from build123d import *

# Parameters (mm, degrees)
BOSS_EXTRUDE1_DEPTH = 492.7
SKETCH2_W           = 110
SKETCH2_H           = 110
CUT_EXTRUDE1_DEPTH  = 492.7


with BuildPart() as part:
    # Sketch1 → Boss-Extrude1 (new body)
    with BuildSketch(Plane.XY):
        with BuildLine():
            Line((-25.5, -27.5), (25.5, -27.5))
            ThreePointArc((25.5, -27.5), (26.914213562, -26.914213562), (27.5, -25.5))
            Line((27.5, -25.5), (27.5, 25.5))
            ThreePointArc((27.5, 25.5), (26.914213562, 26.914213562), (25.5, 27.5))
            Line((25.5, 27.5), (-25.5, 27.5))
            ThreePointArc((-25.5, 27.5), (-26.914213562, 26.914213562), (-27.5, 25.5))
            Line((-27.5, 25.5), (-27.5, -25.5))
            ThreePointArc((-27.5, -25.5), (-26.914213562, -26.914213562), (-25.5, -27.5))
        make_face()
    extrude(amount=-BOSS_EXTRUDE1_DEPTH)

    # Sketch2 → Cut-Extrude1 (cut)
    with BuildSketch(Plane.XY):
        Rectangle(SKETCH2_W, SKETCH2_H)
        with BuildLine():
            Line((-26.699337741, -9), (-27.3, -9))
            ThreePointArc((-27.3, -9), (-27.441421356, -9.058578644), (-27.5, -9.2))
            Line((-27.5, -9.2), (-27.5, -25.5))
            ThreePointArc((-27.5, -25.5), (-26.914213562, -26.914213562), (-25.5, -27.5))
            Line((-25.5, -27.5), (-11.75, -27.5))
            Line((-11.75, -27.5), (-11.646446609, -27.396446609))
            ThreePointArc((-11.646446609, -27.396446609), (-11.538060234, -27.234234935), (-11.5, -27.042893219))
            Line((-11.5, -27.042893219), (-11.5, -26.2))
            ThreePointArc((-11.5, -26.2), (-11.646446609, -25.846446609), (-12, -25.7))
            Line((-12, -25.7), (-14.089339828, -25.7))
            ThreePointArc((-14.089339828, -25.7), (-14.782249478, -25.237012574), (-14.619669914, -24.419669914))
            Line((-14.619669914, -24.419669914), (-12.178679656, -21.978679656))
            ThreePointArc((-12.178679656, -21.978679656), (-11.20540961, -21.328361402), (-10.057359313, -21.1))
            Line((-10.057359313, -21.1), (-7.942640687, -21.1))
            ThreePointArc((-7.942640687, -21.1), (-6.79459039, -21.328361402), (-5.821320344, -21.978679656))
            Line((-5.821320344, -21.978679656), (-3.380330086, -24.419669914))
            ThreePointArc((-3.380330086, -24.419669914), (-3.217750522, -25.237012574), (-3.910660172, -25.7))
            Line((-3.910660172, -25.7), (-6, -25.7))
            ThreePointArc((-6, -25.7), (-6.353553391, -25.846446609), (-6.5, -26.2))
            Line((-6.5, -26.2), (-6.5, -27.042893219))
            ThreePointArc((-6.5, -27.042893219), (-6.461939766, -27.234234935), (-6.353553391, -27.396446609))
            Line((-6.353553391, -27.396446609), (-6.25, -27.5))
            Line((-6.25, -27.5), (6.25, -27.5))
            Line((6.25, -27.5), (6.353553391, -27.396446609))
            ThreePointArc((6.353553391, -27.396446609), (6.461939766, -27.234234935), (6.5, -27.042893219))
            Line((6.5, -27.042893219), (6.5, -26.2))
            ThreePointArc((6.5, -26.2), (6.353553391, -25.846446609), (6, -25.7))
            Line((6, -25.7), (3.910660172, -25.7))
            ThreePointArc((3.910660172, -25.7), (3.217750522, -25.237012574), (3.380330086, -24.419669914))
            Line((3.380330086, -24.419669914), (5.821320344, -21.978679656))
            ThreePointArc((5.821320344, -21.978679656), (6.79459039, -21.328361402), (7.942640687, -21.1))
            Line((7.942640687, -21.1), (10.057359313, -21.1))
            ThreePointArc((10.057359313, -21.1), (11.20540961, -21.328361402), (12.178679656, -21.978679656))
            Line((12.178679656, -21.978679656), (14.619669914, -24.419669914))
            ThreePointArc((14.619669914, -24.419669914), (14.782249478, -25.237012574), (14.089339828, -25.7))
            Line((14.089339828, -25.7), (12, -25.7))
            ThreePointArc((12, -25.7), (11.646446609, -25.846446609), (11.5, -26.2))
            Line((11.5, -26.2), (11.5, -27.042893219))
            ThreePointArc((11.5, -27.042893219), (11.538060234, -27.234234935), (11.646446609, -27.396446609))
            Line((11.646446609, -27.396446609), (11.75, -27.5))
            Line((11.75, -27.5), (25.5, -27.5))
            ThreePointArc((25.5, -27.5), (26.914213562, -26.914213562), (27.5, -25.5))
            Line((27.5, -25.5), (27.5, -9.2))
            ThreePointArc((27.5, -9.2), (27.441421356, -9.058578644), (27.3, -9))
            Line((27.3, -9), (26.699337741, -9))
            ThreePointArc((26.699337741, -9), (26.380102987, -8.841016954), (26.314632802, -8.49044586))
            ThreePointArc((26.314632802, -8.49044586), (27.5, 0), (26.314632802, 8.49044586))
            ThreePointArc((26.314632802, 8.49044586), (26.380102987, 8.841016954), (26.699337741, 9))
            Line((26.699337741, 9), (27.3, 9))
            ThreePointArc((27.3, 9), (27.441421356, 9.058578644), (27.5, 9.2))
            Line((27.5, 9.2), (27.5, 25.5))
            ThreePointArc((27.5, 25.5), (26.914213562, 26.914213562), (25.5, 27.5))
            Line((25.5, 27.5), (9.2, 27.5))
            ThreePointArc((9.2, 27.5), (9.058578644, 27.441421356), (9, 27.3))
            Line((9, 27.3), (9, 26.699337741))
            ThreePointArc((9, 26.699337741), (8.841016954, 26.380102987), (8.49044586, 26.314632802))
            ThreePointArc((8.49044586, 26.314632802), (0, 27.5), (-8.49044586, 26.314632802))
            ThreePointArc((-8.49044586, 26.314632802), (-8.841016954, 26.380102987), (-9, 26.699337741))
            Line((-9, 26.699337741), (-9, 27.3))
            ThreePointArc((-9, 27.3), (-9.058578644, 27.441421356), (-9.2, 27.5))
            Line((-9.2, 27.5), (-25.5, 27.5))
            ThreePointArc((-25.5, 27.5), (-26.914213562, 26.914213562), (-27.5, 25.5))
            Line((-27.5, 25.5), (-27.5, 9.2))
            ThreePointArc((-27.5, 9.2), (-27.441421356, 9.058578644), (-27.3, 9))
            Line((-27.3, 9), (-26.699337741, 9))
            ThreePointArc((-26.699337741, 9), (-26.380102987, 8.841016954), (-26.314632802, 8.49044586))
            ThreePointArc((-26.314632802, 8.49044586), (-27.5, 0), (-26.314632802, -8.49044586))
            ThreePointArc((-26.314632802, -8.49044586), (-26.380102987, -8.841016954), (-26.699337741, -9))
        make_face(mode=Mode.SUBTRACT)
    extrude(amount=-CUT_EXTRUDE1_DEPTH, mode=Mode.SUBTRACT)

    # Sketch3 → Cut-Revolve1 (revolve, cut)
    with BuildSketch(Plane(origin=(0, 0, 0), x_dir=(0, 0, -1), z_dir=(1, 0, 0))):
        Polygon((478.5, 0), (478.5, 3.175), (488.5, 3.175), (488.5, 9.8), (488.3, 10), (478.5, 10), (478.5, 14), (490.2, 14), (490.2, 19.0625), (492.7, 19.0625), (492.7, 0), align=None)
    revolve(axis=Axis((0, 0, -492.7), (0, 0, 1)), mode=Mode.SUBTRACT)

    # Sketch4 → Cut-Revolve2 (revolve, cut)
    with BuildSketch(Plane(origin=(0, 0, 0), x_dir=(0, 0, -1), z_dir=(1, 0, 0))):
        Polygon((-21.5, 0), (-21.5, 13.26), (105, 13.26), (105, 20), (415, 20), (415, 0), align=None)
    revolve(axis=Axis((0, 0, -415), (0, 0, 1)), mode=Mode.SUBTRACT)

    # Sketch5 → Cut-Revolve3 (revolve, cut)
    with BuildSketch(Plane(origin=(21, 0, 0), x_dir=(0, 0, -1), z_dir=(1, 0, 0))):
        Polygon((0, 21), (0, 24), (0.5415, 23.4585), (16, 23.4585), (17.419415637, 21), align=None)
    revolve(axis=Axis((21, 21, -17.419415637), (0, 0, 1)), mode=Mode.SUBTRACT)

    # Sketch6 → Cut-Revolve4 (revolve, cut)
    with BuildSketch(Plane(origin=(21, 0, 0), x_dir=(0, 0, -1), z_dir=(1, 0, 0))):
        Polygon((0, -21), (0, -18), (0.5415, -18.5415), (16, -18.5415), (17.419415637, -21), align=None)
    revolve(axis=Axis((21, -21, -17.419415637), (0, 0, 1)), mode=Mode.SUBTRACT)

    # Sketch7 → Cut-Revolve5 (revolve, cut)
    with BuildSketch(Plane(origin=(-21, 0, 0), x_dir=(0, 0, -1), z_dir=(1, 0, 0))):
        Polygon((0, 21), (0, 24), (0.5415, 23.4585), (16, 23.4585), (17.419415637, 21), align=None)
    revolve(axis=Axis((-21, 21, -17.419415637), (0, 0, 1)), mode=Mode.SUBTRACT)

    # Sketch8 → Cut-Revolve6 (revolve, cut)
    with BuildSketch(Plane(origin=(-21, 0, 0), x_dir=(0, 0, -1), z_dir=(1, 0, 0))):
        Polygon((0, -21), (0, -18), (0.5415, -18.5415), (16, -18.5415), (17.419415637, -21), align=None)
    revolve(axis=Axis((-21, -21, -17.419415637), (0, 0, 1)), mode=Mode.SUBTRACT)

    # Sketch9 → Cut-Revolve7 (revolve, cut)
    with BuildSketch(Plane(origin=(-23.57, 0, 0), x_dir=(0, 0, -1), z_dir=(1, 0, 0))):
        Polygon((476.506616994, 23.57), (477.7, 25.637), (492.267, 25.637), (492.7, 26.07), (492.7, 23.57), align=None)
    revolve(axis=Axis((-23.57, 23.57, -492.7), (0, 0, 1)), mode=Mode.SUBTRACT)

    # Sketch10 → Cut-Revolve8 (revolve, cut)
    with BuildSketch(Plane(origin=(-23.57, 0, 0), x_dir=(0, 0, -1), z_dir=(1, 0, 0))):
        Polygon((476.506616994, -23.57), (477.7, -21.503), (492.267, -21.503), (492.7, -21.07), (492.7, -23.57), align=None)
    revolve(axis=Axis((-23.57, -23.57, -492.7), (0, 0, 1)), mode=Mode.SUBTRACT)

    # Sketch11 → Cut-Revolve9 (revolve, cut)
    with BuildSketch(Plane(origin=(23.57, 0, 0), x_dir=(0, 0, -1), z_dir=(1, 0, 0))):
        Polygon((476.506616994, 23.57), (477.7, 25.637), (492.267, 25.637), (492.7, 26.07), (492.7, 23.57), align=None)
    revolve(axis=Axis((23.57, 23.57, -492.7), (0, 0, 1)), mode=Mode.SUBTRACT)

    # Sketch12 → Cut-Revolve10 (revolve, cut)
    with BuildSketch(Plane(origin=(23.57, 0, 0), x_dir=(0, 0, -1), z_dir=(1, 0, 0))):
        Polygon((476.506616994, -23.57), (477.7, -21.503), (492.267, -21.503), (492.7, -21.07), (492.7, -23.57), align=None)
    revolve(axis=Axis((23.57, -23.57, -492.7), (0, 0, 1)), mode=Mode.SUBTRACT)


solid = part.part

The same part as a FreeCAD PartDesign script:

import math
import FreeCAD as App
import Part
import Sketcher

V = App.Vector
Q = App.Units.Quantity

doc = App.newDocument("Part")
body = doc.addObject("PartDesign::Body", "Body")

# Sketch on XY plane
sketch1 = body.newObject("Sketcher::SketchObject", "Sketch")
sketch1.AttachmentSupport = (doc.getObject("XY_Plane"), [""])
sketch1.MapMode = "FlatFace"
sketch1.addGeometry([
    Part.LineSegment(V(-25.5, -27.5, 0), V(25.5, -27.5, 0)),  # 0
    Part.ArcOfCircle(Part.Circle(V(25.5, -25.5, 0), V(0, 0, 1), 2), math.radians(-90), math.radians(0)),  # 1
    Part.LineSegment(V(27.5, -25.5, 0), V(27.5, 25.5, 0)),  # 2
    Part.ArcOfCircle(Part.Circle(V(25.5, 25.5, 0), V(0, 0, 1), 2), math.radians(0), math.radians(90)),  # 3
    Part.LineSegment(V(25.5, 27.5, 0), V(-25.5, 27.5, 0)),  # 4
    Part.ArcOfCircle(Part.Circle(V(-25.5, 25.5, 0), V(0, 0, 1), 2), math.radians(90), math.radians(180)),  # 5
    Part.LineSegment(V(-27.5, 25.5, 0), V(-27.5, -25.5, 0)),  # 6
    Part.ArcOfCircle(Part.Circle(V(-25.5, -25.5, 0), V(0, 0, 1), 2), math.radians(-180), math.radians(-90)),  # 7
], False)
sketch1.addConstraint([
    Sketcher.Constraint("Tangent", 0, 2, 1, 1),
    Sketcher.Constraint("Tangent", 1, 2, 2, 1),
    Sketcher.Constraint("Tangent", 2, 2, 3, 1),
    Sketcher.Constraint("Tangent", 3, 2, 4, 1),
    Sketcher.Constraint("Tangent", 4, 2, 5, 1),
    Sketcher.Constraint("Tangent", 5, 2, 6, 1),
    Sketcher.Constraint("Tangent", 6, 2, 7, 1),
    Sketcher.Constraint("Tangent", 7, 2, 0, 1),
    Sketcher.Constraint("Horizontal", 0),
    Sketcher.Constraint("Vertical", 2),
    Sketcher.Constraint("Horizontal", 4),
    Sketcher.Constraint("Vertical", 6),
    Sketcher.Constraint("Equal", 1, 3),
    Sketcher.Constraint("Equal", 3, 5),
    Sketcher.Constraint("Equal", 5, 7),
    Sketcher.Constraint("Symmetric", 1, 3, 5, 3, -1, 1),
    Sketcher.Constraint("Equal", 4, 2),
    Sketcher.Constraint("Radius", 1, Q("2 mm")),
    Sketcher.Constraint("DistanceX", 0, 1, 0, 2, Q("51 mm")),
])
pad1 = body.newObject("PartDesign::Pad", "Pad")
pad1.Profile = sketch1
pad1.Length = 492.7
pad1.Reversed = True

# Sketch on XY plane
sketch2 = body.newObject("Sketcher::SketchObject", "Sketch001")
sketch2.AttachmentSupport = (doc.getObject("XY_Plane"), [""])
sketch2.MapMode = "FlatFace"
sketch2.addGeometry([
    Part.LineSegment(V(-55, 55, 0), V(-55, -55, 0)),  # 0
    Part.LineSegment(V(-55, -55, 0), V(55, -55, 0)),  # 1
    Part.LineSegment(V(55, -55, 0), V(55, 55, 0)),  # 2
    Part.LineSegment(V(55, 55, 0), V(-55, 55, 0)),  # 3
    Part.LineSegment(V(-27.3, -9, 0), V(-26.7, -9, 0)),  # 4
    Part.ArcOfCircle(Part.Circle(V(-26.7, -8.6, 0), V(0, 0, 1), 0.4), math.radians(-90), math.radians(16)),  # 5
    Part.ArcOfCircle(Part.Circle(V(3.5, 0, 0), V(0, 0, 1), 31), math.radians(164), math.radians(196)),  # 6
    Part.ArcOfCircle(Part.Circle(V(-26.7, 8.6, 0), V(0, 0, 1), 0.4), math.radians(-16), math.radians(90)),  # 7
    Part.LineSegment(V(-26.7, 9, 0), V(-27.3, 9, 0)),  # 8
    Part.ArcOfCircle(Part.Circle(V(-27.3, 9.2, 0), V(0, 0, 1), 0.2), math.radians(-180), math.radians(-90)),  # 9
    Part.LineSegment(V(-27.5, 9.2, 0), V(-27.5, 25.5, 0)),  # 10
    Part.ArcOfCircle(Part.Circle(V(-25.5, 25.5, 0), V(0, 0, 1), 2), math.radians(90), math.radians(180)),  # 11
    Part.LineSegment(V(-25.5, 27.5, 0), V(-9.2, 27.5, 0)),  # 12
    Part.ArcOfCircle(Part.Circle(V(-9.2, 27.3, 0), V(0, 0, 1), 0.2), math.radians(0), math.radians(90)),  # 13
    Part.LineSegment(V(-9, 27.3, 0), V(-9, 26.7, 0)),  # 14
    Part.ArcOfCircle(Part.Circle(V(-8.6, 26.7, 0), V(0, 0, 1), 0.4), math.radians(180), math.radians(286)),  # 15
    Part.ArcOfCircle(Part.Circle(V(0, -3.5, 0), V(0, 0, 1), 31), math.radians(74), math.radians(106)),  # 16
    Part.ArcOfCircle(Part.Circle(V(8.6, 26.7, 0), V(0, 0, 1), 0.4), math.radians(-106), math.radians(0)),  # 17
    Part.LineSegment(V(9, 26.7, 0), V(9, 27.3, 0)),  # 18
    Part.ArcOfCircle(Part.Circle(V(9.2, 27.3, 0), V(0, 0, 1), 0.2), math.radians(90), math.radians(180)),  # 19
    Part.LineSegment(V(9.2, 27.5, 0), V(25.5, 27.5, 0)),  # 20
    Part.ArcOfCircle(Part.Circle(V(25.5, 25.5, 0), V(0, 0, 1), 2), math.radians(0), math.radians(90)),  # 21
    Part.LineSegment(V(27.5, 25.5, 0), V(27.5, 9.2, 0)),  # 22
    Part.ArcOfCircle(Part.Circle(V(27.3, 9.2, 0), V(0, 0, 1), 0.2), math.radians(-90), math.radians(0)),  # 23
    Part.LineSegment(V(27.3, 9, 0), V(26.7, 9, 0)),  # 24
    Part.ArcOfCircle(Part.Circle(V(26.7, 8.6, 0), V(0, 0, 1), 0.4), math.radians(90), math.radians(196)),  # 25
    Part.ArcOfCircle(Part.Circle(V(-3.5, 0, 0), V(0, 0, 1), 31), math.radians(-16), math.radians(16)),  # 26
    Part.ArcOfCircle(Part.Circle(V(26.7, -8.6, 0), V(0, 0, 1), 0.4), math.radians(164), math.radians(270)),  # 27
    Part.LineSegment(V(26.7, -9, 0), V(27.3, -9, 0)),  # 28
    Part.ArcOfCircle(Part.Circle(V(27.3, -9.2, 0), V(0, 0, 1), 0.2), math.radians(0), math.radians(90)),  # 29
    Part.LineSegment(V(27.5, -9.2, 0), V(27.5, -25.5, 0)),  # 30
    Part.ArcOfCircle(Part.Circle(V(25.5, -25.5, 0), V(0, 0, 1), 2), math.radians(-90), math.radians(0)),  # 31
    Part.LineSegment(V(25.5, -27.5, 0), V(11.75, -27.5, 0)),  # 32
    Part.LineSegment(V(11.75, -27.5, 0), V(11.65, -27.4, 0)),  # 33
    Part.ArcOfCircle(Part.Circle(V(12, -27.04, 0), V(0, 0, 1), 0.5), math.radians(-180), math.radians(-135)),  # 34
    Part.LineSegment(V(11.5, -27.04, 0), V(11.5, -26.2, 0)),  # 35
    Part.ArcOfCircle(Part.Circle(V(12, -26.2, 0), V(0, 0, 1), 0.5), math.radians(90), math.radians(180)),  # 36
    Part.LineSegment(V(12, -25.7, 0), V(14.09, -25.7, 0)),  # 37
    Part.ArcOfCircle(Part.Circle(V(14.09, -24.95, 0), V(0, 0, 1), 0.75), math.radians(-90), math.radians(45)),  # 38
    Part.LineSegment(V(14.62, -24.42, 0), V(12.18, -21.98, 0)),  # 39
    Part.ArcOfCircle(Part.Circle(V(10.06, -24.1, 0), V(0, 0, 1), 3), math.radians(45), math.radians(90)),  # 40
    Part.LineSegment(V(10.06, -21.1, 0), V(7.94, -21.1, 0)),  # 41
    Part.ArcOfCircle(Part.Circle(V(7.94, -24.1, 0), V(0, 0, 1), 3), math.radians(90), math.radians(135)),  # 42
    Part.LineSegment(V(5.82, -21.98, 0), V(3.38, -24.42, 0)),  # 43
    Part.ArcOfCircle(Part.Circle(V(3.91, -24.95, 0), V(0, 0, 1), 0.75), math.radians(135), math.radians(270)),  # 44
    Part.LineSegment(V(3.91, -25.7, 0), V(6, -25.7, 0)),  # 45
    Part.ArcOfCircle(Part.Circle(V(6, -26.2, 0), V(0, 0, 1), 0.5), math.radians(0), math.radians(90)),  # 46
    Part.LineSegment(V(6.5, -26.2, 0), V(6.5, -27.04, 0)),  # 47
    Part.ArcOfCircle(Part.Circle(V(6, -27.04, 0), V(0, 0, 1), 0.5), math.radians(-45), math.radians(0)),  # 48
    Part.LineSegment(V(6.35, -27.4, 0), V(6.25, -27.5, 0)),  # 49
    Part.LineSegment(V(6.25, -27.5, 0), V(-6.25, -27.5, 0)),  # 50
    Part.LineSegment(V(-6.25, -27.5, 0), V(-6.35, -27.4, 0)),  # 51
    Part.ArcOfCircle(Part.Circle(V(-6, -27.04, 0), V(0, 0, 1), 0.5), math.radians(-180), math.radians(-135)),  # 52
    Part.LineSegment(V(-6.5, -27.04, 0), V(-6.5, -26.2, 0)),  # 53
    Part.ArcOfCircle(Part.Circle(V(-6, -26.2, 0), V(0, 0, 1), 0.5), math.radians(90), math.radians(180)),  # 54
    Part.LineSegment(V(-6, -25.7, 0), V(-3.91, -25.7, 0)),  # 55
    Part.ArcOfCircle(Part.Circle(V(-3.91, -24.95, 0), V(0, 0, 1), 0.75), math.radians(-90), math.radians(45)),  # 56
    Part.LineSegment(V(-3.38, -24.42, 0), V(-5.82, -21.98, 0)),  # 57
    Part.ArcOfCircle(Part.Circle(V(-7.94, -24.1, 0), V(0, 0, 1), 3), math.radians(45), math.radians(90)),  # 58
    Part.LineSegment(V(-7.94, -21.1, 0), V(-10.06, -21.1, 0)),  # 59
    Part.ArcOfCircle(Part.Circle(V(-10.06, -24.1, 0), V(0, 0, 1), 3), math.radians(90), math.radians(135)),  # 60
    Part.LineSegment(V(-12.18, -21.98, 0), V(-14.62, -24.42, 0)),  # 61
    Part.ArcOfCircle(Part.Circle(V(-14.09, -24.95, 0), V(0, 0, 1), 0.75), math.radians(135), math.radians(270)),  # 62
    Part.LineSegment(V(-14.09, -25.7, 0), V(-12, -25.7, 0)),  # 63
    Part.ArcOfCircle(Part.Circle(V(-12, -26.2, 0), V(0, 0, 1), 0.5), math.radians(0), math.radians(90)),  # 64
    Part.LineSegment(V(-11.5, -26.2, 0), V(-11.5, -27.04, 0)),  # 65
    Part.ArcOfCircle(Part.Circle(V(-12, -27.04, 0), V(0, 0, 1), 0.5), math.radians(-45), math.radians(0)),  # 66
    Part.LineSegment(V(-11.65, -27.4, 0), V(-11.75, -27.5, 0)),  # 67
    Part.LineSegment(V(-11.75, -27.5, 0), V(-25.5, -27.5, 0)),  # 68
    Part.ArcOfCircle(Part.Circle(V(-25.5, -25.5, 0), V(0, 0, 1), 2), math.radians(-180), math.radians(-90)),  # 69
    Part.LineSegment(V(-27.5, -25.5, 0), V(-27.5, -9.2, 0)),  # 70
    Part.ArcOfCircle(Part.Circle(V(-27.3, -9.2, 0), V(0, 0, 1), 0.2), math.radians(90), math.radians(180)),  # 71
], False)
sketch2.addConstraint([
    Sketcher.Constraint("Coincident", 0, 2, 1, 1),
    Sketcher.Constraint("Coincident", 1, 2, 2, 1),
    Sketcher.Constraint("Coincident", 2, 2, 3, 1),
    Sketcher.Constraint("Coincident", 3, 2, 0, 1),
    Sketcher.Constraint("Tangent", 4, 2, 5, 1),
    Sketcher.Constraint("Tangent", 5, 2, 6, 2),
    Sketcher.Constraint("Tangent", 6, 1, 7, 1),
    Sketcher.Constraint("Tangent", 7, 2, 8, 1),
    Sketcher.Constraint("Tangent", 8, 2, 9, 2),
    Sketcher.Constraint("Tangent", 9, 1, 10, 1),
    Sketcher.Constraint("Tangent", 10, 2, 11, 2),
    Sketcher.Constraint("Tangent", 11, 1, 12, 1),
    Sketcher.Constraint("Tangent", 12, 2, 13, 2),
    Sketcher.Constraint("Tangent", 13, 1, 14, 1),
    Sketcher.Constraint("Tangent", 14, 2, 15, 1),
    Sketcher.Constraint("Tangent", 15, 2, 16, 2),
    Sketcher.Constraint("Tangent", 16, 1, 17, 1),
    Sketcher.Constraint("Tangent", 17, 2, 18, 1),
    Sketcher.Constraint("Tangent", 18, 2, 19, 2),
    Sketcher.Constraint("Tangent", 19, 1, 20, 1),
    Sketcher.Constraint("Tangent", 20, 2, 21, 2),
    Sketcher.Constraint("Tangent", 21, 1, 22, 1),
    Sketcher.Constraint("Tangent", 22, 2, 23, 2),
    Sketcher.Constraint("Tangent", 23, 1, 24, 1),
    Sketcher.Constraint("Tangent", 24, 2, 25, 1),
    Sketcher.Constraint("Tangent", 25, 2, 26, 2),
    Sketcher.Constraint("Tangent", 26, 1, 27, 1),
    Sketcher.Constraint("Tangent", 27, 2, 28, 1),
    Sketcher.Constraint("Tangent", 28, 2, 29, 2),
    Sketcher.Constraint("Tangent", 29, 1, 30, 1),
    Sketcher.Constraint("Tangent", 30, 2, 31, 2),
    Sketcher.Constraint("Tangent", 31, 1, 32, 1),
    Sketcher.Constraint("Coincident", 32, 2, 33, 1),
    Sketcher.Constraint("Tangent", 33, 2, 34, 2),
    Sketcher.Constraint("Tangent", 34, 1, 35, 1),
    Sketcher.Constraint("Tangent", 35, 2, 36, 2),
    Sketcher.Constraint("Tangent", 36, 1, 37, 1),
    Sketcher.Constraint("Tangent", 37, 2, 38, 1),
    Sketcher.Constraint("Tangent", 38, 2, 39, 1),
    Sketcher.Constraint("Tangent", 39, 2, 40, 1),
    Sketcher.Constraint("Tangent", 40, 2, 41, 1),
    Sketcher.Constraint("Tangent", 41, 2, 42, 1),
    Sketcher.Constraint("Tangent", 42, 2, 43, 1),
    Sketcher.Constraint("Tangent", 43, 2, 44, 1),
    Sketcher.Constraint("Tangent", 44, 2, 45, 1),
    Sketcher.Constraint("Tangent", 45, 2, 46, 2),
    Sketcher.Constraint("Tangent", 46, 1, 47, 1),
    Sketcher.Constraint("Tangent", 47, 2, 48, 2),
    Sketcher.Constraint("Tangent", 48, 1, 49, 1),
    Sketcher.Constraint("Coincident", 49, 2, 50, 1),
    Sketcher.Constraint("Coincident", 50, 2, 51, 1),
    Sketcher.Constraint("Tangent", 51, 2, 52, 2),
    Sketcher.Constraint("Tangent", 52, 1, 53, 1),
    Sketcher.Constraint("Tangent", 53, 2, 54, 2),
    Sketcher.Constraint("Tangent", 54, 1, 55, 1),
    Sketcher.Constraint("Tangent", 55, 2, 56, 1),
    Sketcher.Constraint("Tangent", 56, 2, 57, 1),
    Sketcher.Constraint("Tangent", 57, 2, 58, 1),
    Sketcher.Constraint("Tangent", 58, 2, 59, 1),
    Sketcher.Constraint("Tangent", 59, 2, 60, 1),
    Sketcher.Constraint("Tangent", 60, 2, 61, 1),
    Sketcher.Constraint("Tangent", 61, 2, 62, 1),
    Sketcher.Constraint("Tangent", 62, 2, 63, 1),
    Sketcher.Constraint("Tangent", 63, 2, 64, 2),
    Sketcher.Constraint("Tangent", 64, 1, 65, 1),
    Sketcher.Constraint("Tangent", 65, 2, 66, 2),
    Sketcher.Constraint("Tangent", 66, 1, 67, 1),
    Sketcher.Constraint("Coincident", 67, 2, 68, 1),
    Sketcher.Constraint("Tangent", 68, 2, 69, 2),
    Sketcher.Constraint("Tangent", 69, 1, 70, 1),
    Sketcher.Constraint("Tangent", 70, 2, 71, 2),
    Sketcher.Constraint("Tangent", 71, 1, 4, 1),
    Sketcher.Constraint("Vertical", 0),
    Sketcher.Constraint("Horizontal", 1),
    Sketcher.Constraint("Vertical", 2),
    Sketcher.Constraint("Horizontal", 3),
    Sketcher.Constraint("Horizontal", 4),
    Sketcher.Constraint("Horizontal", 8),
    Sketcher.Constraint("Vertical", 10),
    Sketcher.Constraint("Horizontal", 12),
    Sketcher.Constraint("Vertical", 14),
    Sketcher.Constraint("Vertical", 18),
    Sketcher.Constraint("Horizontal", 20),
    Sketcher.Constraint("Vertical", 22),
    Sketcher.Constraint("Horizontal", 24),
    Sketcher.Constraint("Horizontal", 28),
    Sketcher.Constraint("Vertical", 30),
    Sketcher.Constraint("Horizontal", 32),
    Sketcher.Constraint("Vertical", 35),
    Sketcher.Constraint("Horizontal", 37),
    Sketcher.Constraint("Horizontal", 41),
    Sketcher.Constraint("Horizontal", 45),
    Sketcher.Constraint("Vertical", 47),
    Sketcher.Constraint("Horizontal", 50),
    Sketcher.Constraint("Vertical", 53),
    Sketcher.Constraint("Horizontal", 55),
    Sketcher.Constraint("Horizontal", 59),
    Sketcher.Constraint("Horizontal", 63),
    Sketcher.Constraint("Vertical", 65),
    Sketcher.Constraint("Horizontal", 68),
    Sketcher.Constraint("Vertical", 70),
    Sketcher.Constraint("Equal", 5, 7),
    Sketcher.Constraint("Equal", 9, 13),
    Sketcher.Constraint("Equal", 7, 15),
    Sketcher.Constraint("Equal", 6, 16),
    Sketcher.Constraint("Equal", 15, 17),
    Sketcher.Constraint("Equal", 13, 19),
    Sketcher.Constraint("Equal", 11, 21),
    Sketcher.Constraint("Equal", 19, 23),
    Sketcher.Constraint("Equal", 17, 25),
    Sketcher.Constraint("Equal", 16, 26),
    Sketcher.Constraint("Equal", 25, 27),
    Sketcher.Constraint("Equal", 23, 29),
    Sketcher.Constraint("Equal", 21, 31),
    Sketcher.Constraint("Equal", 34, 36),
    Sketcher.Constraint("Equal", 40, 42),
    Sketcher.Constraint("Equal", 38, 44),
    Sketcher.Constraint("Equal", 36, 46),
    Sketcher.Constraint("Equal", 46, 48),
    Sketcher.Constraint("Equal", 48, 52),
    Sketcher.Constraint("Equal", 52, 54),
    Sketcher.Constraint("Equal", 44, 56),
    Sketcher.Constraint("Equal", 42, 58),
    Sketcher.Constraint("Equal", 58, 60),
    Sketcher.Constraint("Equal", 56, 62),
    Sketcher.Constraint("Equal", 54, 64),
    Sketcher.Constraint("Equal", 64, 66),
    Sketcher.Constraint("Equal", 31, 69),
    Sketcher.Constraint("Equal", 29, 71),
    Sketcher.Constraint("Symmetric", 5, 3, 25, 3, -1, 1),
    Sketcher.Constraint("Symmetric", 7, 3, 27, 3, -1, 1),
    Sketcher.Constraint("Symmetric", 11, 3, 31, 3, -1, 1),
    Sketcher.Constraint("Symmetric", 21, 3, 69, 3, -1, 1),
    Sketcher.Constraint("Symmetric", 0, 2, 2, 2, -1, 1),
    Sketcher.Constraint("Symmetric", 15, 3, 17, 3, -2),
    Sketcher.Constraint("Symmetric", 11, 3, 21, 3, -2),
    Sketcher.Constraint("Symmetric", 7, 3, 25, 3, -2),
    Sketcher.Constraint("Symmetric", 48, 3, 52, 3, -2),
    Sketcher.Constraint("Symmetric", 44, 3, 56, 3, -2),
    Sketcher.Constraint("Symmetric", 42, 3, 58, 3, -2),
    Sketcher.Constraint("Symmetric", 38, 3, 62, 3, -2),
    Sketcher.Constraint("Symmetric", 34, 3, 66, 3, -2),
    Sketcher.Constraint("Parallel", 33, 39),
    Sketcher.Constraint("Perpendicular", 39, 43),
    Sketcher.Constraint("Parallel", 43, 49),
    Sketcher.Constraint("Perpendicular", 49, 51),
    Sketcher.Constraint("Parallel", 51, 57),
    Sketcher.Constraint("Perpendicular", 57, 61),
    Sketcher.Constraint("Parallel", 61, 67),
    Sketcher.Constraint("Horizontal", 38, 3, 44, 3),
    Sketcher.Constraint("Horizontal", 34, 3, 48, 3),
    Sketcher.Constraint("Horizontal", 32, 2, 49, 2),
    Sketcher.Constraint("Equal", 37, 45),
    Sketcher.Constraint("Equal", 3, 0),
    Sketcher.Constraint("Equal", 20, 10),
    Sketcher.Constraint("Equal", 28, 14),
    Sketcher.Constraint("Radius", 6, Q("31 mm")),
    Sketcher.Constraint("Radius", 11, Q("2 mm")),
    Sketcher.Constraint("Radius", 40, Q("3 mm")),
    Sketcher.Constraint("Radius", 5, Q("0.4 mm")),
    Sketcher.Constraint("Radius", 9, Q("0.2 mm")),
    Sketcher.Constraint("Radius", 34, Q("0.5 mm")),
    Sketcher.Constraint("DistanceX", 1, 1, 1, 2, Q("110 mm")),
    Sketcher.Constraint("Radius", 38, Q("0.75 mm")),
    Sketcher.Constraint("DistanceX", 12, 1, 12, 2, Q("16.3 mm")),
    Sketcher.Constraint("DistanceX", 50, 2, 50, 1, Q("12.5 mm")),
    Sketcher.Constraint("DistanceX", -1, 1, 34, 3, Q("12 mm")),
    Sketcher.Constraint("DistanceX", -1, 1, 46, 3, Q("6 mm")),
    Sketcher.Constraint("DistanceY", 4, 2, -1, 1, Q("9 mm")),
    Sketcher.Constraint("DistanceX", 13, 1, -1, 1, Q("9 mm")),
    Sketcher.Constraint("DistanceX", -1, 1, 6, 3, Q("3.5 mm")),
    Sketcher.Constraint("DistanceY", 36, 3, -1, 1, Q("26.2 mm")),
    Sketcher.Constraint("DistanceY", 40, 3, -1, 1, Q("24.1 mm")),
    Sketcher.Constraint("DistanceX", 37, 1, 37, 2, Q("2.08934 mm")),
])
pocket1 = body.newObject("PartDesign::Pocket", "Pocket")
pocket1.Profile = sketch2
pocket1.Length = 492.7

# Sketch on YZ plane
sketch3 = body.newObject("Sketcher::SketchObject", "Sketch002")
sketch3.AttachmentSupport = (doc.getObject("YZ_Plane"), [""])
sketch3.MapMode = "FlatFace"
sketch3.addGeometry([
    Part.LineSegment(V(3.17, -478.5, 0), V(0, -478.5, 0)),  # 0
    Part.LineSegment(V(0, -478.5, 0), V(0, -492.7, 0)),  # 1
    Part.LineSegment(V(0, -492.7, 0), V(19.06, -492.7, 0)),  # 2
    Part.LineSegment(V(19.06, -492.7, 0), V(19.06, -490.2, 0)),  # 3
    Part.LineSegment(V(19.06, -490.2, 0), V(14, -490.2, 0)),  # 4
    Part.LineSegment(V(14, -490.2, 0), V(14, -478.5, 0)),  # 5
    Part.LineSegment(V(14, -478.5, 0), V(10, -478.5, 0)),  # 6
    Part.LineSegment(V(10, -478.5, 0), V(10, -488.3, 0)),  # 7
    Part.LineSegment(V(10, -488.3, 0), V(9.8, -488.5, 0)),  # 8
    Part.LineSegment(V(9.8, -488.5, 0), V(3.17, -488.5, 0)),  # 9
    Part.LineSegment(V(3.17, -488.5, 0), V(3.17, -478.5, 0)),  # 10
], False)
sketch3.addConstraint([
    Sketcher.Constraint("Coincident", 0, 2, 1, 1),
    Sketcher.Constraint("Coincident", 1, 2, 2, 1),
    Sketcher.Constraint("Coincident", 2, 2, 3, 1),
    Sketcher.Constraint("Coincident", 3, 2, 4, 1),
    Sketcher.Constraint("Coincident", 4, 2, 5, 1),
    Sketcher.Constraint("Coincident", 5, 2, 6, 1),
    Sketcher.Constraint("Coincident", 6, 2, 7, 1),
    Sketcher.Constraint("Coincident", 7, 2, 8, 1),
    Sketcher.Constraint("Coincident", 8, 2, 9, 1),
    Sketcher.Constraint("Coincident", 9, 2, 10, 1),
    Sketcher.Constraint("Coincident", 10, 2, 0, 1),
    Sketcher.Constraint("Horizontal", 0),
    Sketcher.Constraint("Vertical", 1),
    Sketcher.Constraint("Horizontal", 2),
    Sketcher.Constraint("Vertical", 3),
    Sketcher.Constraint("Horizontal", 4),
    Sketcher.Constraint("Vertical", 5),
    Sketcher.Constraint("Horizontal", 6),
    Sketcher.Constraint("Vertical", 7),
    Sketcher.Constraint("Horizontal", 9),
    Sketcher.Constraint("Vertical", 10),
    Sketcher.Constraint("PointOnObject", 0, 2, -2),
    Sketcher.Constraint("Horizontal", 0, 2, 5, 2),
    Sketcher.Constraint("DistanceX", 6, 2, 6, 1, Q("4 mm")),
    Sketcher.Constraint("DistanceY", 10, 1, 10, 2, Q("10 mm")),
    Sketcher.Constraint("Angle", 8, Q("-135 deg")),
    Sketcher.Constraint("DistanceY", 1, 2, 1, 1, Q("14.2 mm")),
    Sketcher.Constraint("DistanceY", 3, 1, 3, 2, Q("2.5 mm")),
    Sketcher.Constraint("DistanceY", 7, 2, 7, 1, Q("9.8 mm")),
    Sketcher.Constraint("DistanceX", -1, 1, 4, 2, Q("14 mm")),
    Sketcher.Constraint("DistanceY", 0, 2, -1, 1, Q("478.5 mm")),
    Sketcher.Constraint("DistanceX", 0, 2, 0, 1, Q("3.175 mm")),
    Sketcher.Constraint("DistanceX", 2, 1, 2, 2, Q("19.0625 mm")),
])
groove = body.newObject("PartDesign::Groove", "Groove")
groove.Profile = sketch3
groove.ReferenceAxis = (sketch3, ["V_Axis"])
groove.Angle = 360

# Sketch on YZ plane
sketch4 = body.newObject("Sketcher::SketchObject", "Sketch003")
sketch4.AttachmentSupport = (doc.getObject("YZ_Plane"), [""])
sketch4.MapMode = "FlatFace"
sketch4.addGeometry([
    Part.LineSegment(V(13, 22, 0), V(0, 22, 0)),  # 0
    Part.LineSegment(V(0, 22, 0), V(0, -415, 0)),  # 1
    Part.LineSegment(V(0, -415, 0), V(20, -415, 0)),  # 2
    Part.LineSegment(V(20, -415, 0), V(20, -105, 0)),  # 3
    Part.LineSegment(V(20, -105, 0), V(13, -105, 0)),  # 4
    Part.LineSegment(V(13, -105, 0), V(13, 22, 0)),  # 5
], False)
sketch4.addConstraint([
    Sketcher.Constraint("Coincident", 0, 2, 1, 1),
    Sketcher.Constraint("Coincident", 1, 2, 2, 1),
    Sketcher.Constraint("Coincident", 2, 2, 3, 1),
    Sketcher.Constraint("Coincident", 3, 2, 4, 1),
    Sketcher.Constraint("Coincident", 4, 2, 5, 1),
    Sketcher.Constraint("Coincident", 5, 2, 0, 1),
    Sketcher.Constraint("Horizontal", 0),
    Sketcher.Constraint("Vertical", 1),
    Sketcher.Constraint("Horizontal", 2),
    Sketcher.Constraint("Vertical", 3),
    Sketcher.Constraint("Horizontal", 4),
    Sketcher.Constraint("Vertical", 5),
    Sketcher.Constraint("PointOnObject", 0, 2, -2),
    Sketcher.Constraint("DistanceX", 2, 1, 2, 2, Q("20 mm")),
    Sketcher.Constraint("DistanceY", 3, 1, 3, 2, Q("310 mm")),
    Sketcher.Constraint("DistanceY", 1, 2, 1, 1, Q("436.5 mm")),
    Sketcher.Constraint("DistanceY", 1, 2, -1, 1, Q("415 mm")),
    Sketcher.Constraint("DistanceX", 0, 2, 0, 1, Q("13.26 mm")),
])
groove2 = body.newObject("PartDesign::Groove", "Groove001")
groove2.Profile = sketch4
groove2.ReferenceAxis = (sketch4, ["V_Axis"])
groove2.Angle = 360

# Sketch on YZ plane
sketch5 = body.newObject("Sketcher::SketchObject", "Sketch004")
sketch5.AttachmentSupport = (doc.getObject("YZ_Plane"), [""])
sketch5.MapMode = "FlatFace"
sketch5.AttachmentOffset = App.Placement(V(0, 0, 21), App.Rotation())
sketch5.addGeometry([
    Part.LineSegment(V(24, 0, 0), V(21, 0, 0)),  # 0
    Part.LineSegment(V(21, 0, 0), V(21, -17.4, 0)),  # 1
    Part.LineSegment(V(21, -17.4, 0), V(23.5, -16, 0)),  # 2
    Part.LineSegment(V(23.5, -16, 0), V(23.5, -0.5, 0)),  # 3
    Part.LineSegment(V(23.5, -0.5, 0), V(24, 0, 0)),  # 4
], False)
sketch5.addGeometry(Part.LineSegment(V(21, -17.4, 0), V(21, 0, 0)), True)  # axis
sketch5.addConstraint([
    Sketcher.Constraint("Coincident", 0, 2, 1, 1),
    Sketcher.Constraint("Coincident", 1, 2, 2, 1),
    Sketcher.Constraint("Coincident", 2, 2, 3, 1),
    Sketcher.Constraint("Coincident", 3, 2, 4, 1),
    Sketcher.Constraint("Coincident", 4, 2, 0, 1),
    Sketcher.Constraint("Horizontal", 0),
    Sketcher.Constraint("Vertical", 1),
    Sketcher.Constraint("Vertical", 3),
    Sketcher.Constraint("Vertical", 5),
    Sketcher.Constraint("Coincident", 5, 1, 1, 2),
    Sketcher.Constraint("PointOnObject", 0, 2, -1),
    Sketcher.Constraint("PointOnObject", 5, 2, -1),
    Sketcher.Constraint("DistanceX", 0, 2, 0, 1, Q("3 mm")),
    Sketcher.Constraint("Angle", 2, Q("30 deg")),
    Sketcher.Constraint("Angle", 4, Q("45 deg")),
    Sketcher.Constraint("DistanceX", -1, 1, 0, 2, Q("21 mm")),
    Sketcher.Constraint("DistanceY", 2, 2, -1, 1, Q("16 mm")),
    Sketcher.Constraint("DistanceY", 3, 1, 3, 2, Q("15.4585 mm")),
])
groove3 = body.newObject("PartDesign::Groove", "Groove002")
groove3.Profile = sketch5
groove3.ReferenceAxis = (sketch5, ["Axis0"])
groove3.Angle = 360

# Sketch on YZ plane
sketch6 = body.newObject("Sketcher::SketchObject", "Sketch005")
sketch6.AttachmentSupport = (doc.getObject("YZ_Plane"), [""])
sketch6.MapMode = "FlatFace"
sketch6.AttachmentOffset = App.Placement(V(0, 0, 21), App.Rotation())
sketch6.addGeometry([
    Part.LineSegment(V(-18, 0, 0), V(-21, 0, 0)),  # 0
    Part.LineSegment(V(-21, 0, 0), V(-21, -17.4, 0)),  # 1
    Part.LineSegment(V(-21, -17.4, 0), V(-18.5, -16, 0)),  # 2
    Part.LineSegment(V(-18.5, -16, 0), V(-18.5, -0.5, 0)),  # 3
    Part.LineSegment(V(-18.5, -0.5, 0), V(-18, 0, 0)),  # 4
], False)
sketch6.addGeometry(Part.LineSegment(V(-21, -17.4, 0), V(-21, 0, 0)), True)  # axis
sketch6.addConstraint([
    Sketcher.Constraint("Coincident", 0, 2, 1, 1),
    Sketcher.Constraint("Coincident", 1, 2, 2, 1),
    Sketcher.Constraint("Coincident", 2, 2, 3, 1),
    Sketcher.Constraint("Coincident", 3, 2, 4, 1),
    Sketcher.Constraint("Coincident", 4, 2, 0, 1),
    Sketcher.Constraint("Horizontal", 0),
    Sketcher.Constraint("Vertical", 1),
    Sketcher.Constraint("Vertical", 3),
    Sketcher.Constraint("Vertical", 5),
    Sketcher.Constraint("Coincident", 5, 1, 1, 2),
    Sketcher.Constraint("PointOnObject", 0, 2, -1),
    Sketcher.Constraint("PointOnObject", 5, 2, -1),
    Sketcher.Constraint("DistanceX", 0, 2, 0, 1, Q("3 mm")),
    Sketcher.Constraint("Angle", 2, Q("30 deg")),
    Sketcher.Constraint("Angle", 4, Q("45 deg")),
    Sketcher.Constraint("DistanceX", 0, 2, -1, 1, Q("21 mm")),
    Sketcher.Constraint("DistanceY", 2, 2, -1, 1, Q("16 mm")),
    Sketcher.Constraint("DistanceY", 3, 1, 3, 2, Q("15.4585 mm")),
])
groove4 = body.newObject("PartDesign::Groove", "Groove003")
groove4.Profile = sketch6
groove4.ReferenceAxis = (sketch6, ["Axis0"])
groove4.Angle = 360

# Sketch on YZ plane
sketch7 = body.newObject("Sketcher::SketchObject", "Sketch006")
sketch7.AttachmentSupport = (doc.getObject("YZ_Plane"), [""])
sketch7.MapMode = "FlatFace"
sketch7.AttachmentOffset = App.Placement(V(0, 0, -21), App.Rotation())
sketch7.addGeometry([
    Part.LineSegment(V(24, 0, 0), V(21, 0, 0)),  # 0
    Part.LineSegment(V(21, 0, 0), V(21, -17.4, 0)),  # 1
    Part.LineSegment(V(21, -17.4, 0), V(23.5, -16, 0)),  # 2
    Part.LineSegment(V(23.5, -16, 0), V(23.5, -0.5, 0)),  # 3
    Part.LineSegment(V(23.5, -0.5, 0), V(24, 0, 0)),  # 4
], False)
sketch7.addGeometry(Part.LineSegment(V(21, -17.4, 0), V(21, 0, 0)), True)  # axis
sketch7.addConstraint([
    Sketcher.Constraint("Coincident", 0, 2, 1, 1),
    Sketcher.Constraint("Coincident", 1, 2, 2, 1),
    Sketcher.Constraint("Coincident", 2, 2, 3, 1),
    Sketcher.Constraint("Coincident", 3, 2, 4, 1),
    Sketcher.Constraint("Coincident", 4, 2, 0, 1),
    Sketcher.Constraint("Horizontal", 0),
    Sketcher.Constraint("Vertical", 1),
    Sketcher.Constraint("Vertical", 3),
    Sketcher.Constraint("Vertical", 5),
    Sketcher.Constraint("Coincident", 5, 1, 1, 2),
    Sketcher.Constraint("PointOnObject", 0, 2, -1),
    Sketcher.Constraint("PointOnObject", 5, 2, -1),
    Sketcher.Constraint("DistanceX", 0, 2, 0, 1, Q("3 mm")),
    Sketcher.Constraint("Angle", 2, Q("30 deg")),
    Sketcher.Constraint("Angle", 4, Q("45 deg")),
    Sketcher.Constraint("DistanceX", -1, 1, 0, 2, Q("21 mm")),
    Sketcher.Constraint("DistanceY", 2, 2, -1, 1, Q("16 mm")),
    Sketcher.Constraint("DistanceY", 3, 1, 3, 2, Q("15.4585 mm")),
])
groove5 = body.newObject("PartDesign::Groove", "Groove004")
groove5.Profile = sketch7
groove5.ReferenceAxis = (sketch7, ["Axis0"])
groove5.Angle = 360

# Sketch on YZ plane
sketch8 = body.newObject("Sketcher::SketchObject", "Sketch007")
sketch8.AttachmentSupport = (doc.getObject("YZ_Plane"), [""])
sketch8.MapMode = "FlatFace"
sketch8.AttachmentOffset = App.Placement(V(0, 0, -21), App.Rotation())
sketch8.addGeometry([
    Part.LineSegment(V(-18, 0, 0), V(-21, 0, 0)),  # 0
    Part.LineSegment(V(-21, 0, 0), V(-21, -17.4, 0)),  # 1
    Part.LineSegment(V(-21, -17.4, 0), V(-18.5, -16, 0)),  # 2
    Part.LineSegment(V(-18.5, -16, 0), V(-18.5, -0.5, 0)),  # 3
    Part.LineSegment(V(-18.5, -0.5, 0), V(-18, 0, 0)),  # 4
], False)
sketch8.addGeometry(Part.LineSegment(V(-21, -17.4, 0), V(-21, 0, 0)), True)  # axis
sketch8.addConstraint([
    Sketcher.Constraint("Coincident", 0, 2, 1, 1),
    Sketcher.Constraint("Coincident", 1, 2, 2, 1),
    Sketcher.Constraint("Coincident", 2, 2, 3, 1),
    Sketcher.Constraint("Coincident", 3, 2, 4, 1),
    Sketcher.Constraint("Coincident", 4, 2, 0, 1),
    Sketcher.Constraint("Horizontal", 0),
    Sketcher.Constraint("Vertical", 1),
    Sketcher.Constraint("Vertical", 3),
    Sketcher.Constraint("Vertical", 5),
    Sketcher.Constraint("Coincident", 5, 1, 1, 2),
    Sketcher.Constraint("PointOnObject", 0, 2, -1),
    Sketcher.Constraint("PointOnObject", 5, 2, -1),
    Sketcher.Constraint("DistanceX", 0, 2, 0, 1, Q("3 mm")),
    Sketcher.Constraint("Angle", 2, Q("30 deg")),
    Sketcher.Constraint("Angle", 4, Q("45 deg")),
    Sketcher.Constraint("DistanceX", 0, 2, -1, 1, Q("21 mm")),
    Sketcher.Constraint("DistanceY", 2, 2, -1, 1, Q("16 mm")),
    Sketcher.Constraint("DistanceY", 3, 1, 3, 2, Q("15.4585 mm")),
])
groove6 = body.newObject("PartDesign::Groove", "Groove005")
groove6.Profile = sketch8
groove6.ReferenceAxis = (sketch8, ["Axis0"])
groove6.Angle = 360

# Sketch on YZ plane
sketch9 = body.newObject("Sketcher::SketchObject", "Sketch008")
sketch9.AttachmentSupport = (doc.getObject("YZ_Plane"), [""])
sketch9.MapMode = "FlatFace"
sketch9.AttachmentOffset = App.Placement(V(0, 0, -23.57), App.Rotation())
sketch9.addGeometry([
    Part.LineSegment(V(25.6, -477.7, 0), V(23.6, -476.5, 0)),  # 0
    Part.LineSegment(V(23.6, -476.5, 0), V(23.6, -492.7, 0)),  # 1
    Part.LineSegment(V(23.6, -492.7, 0), V(26.1, -492.7, 0)),  # 2
    Part.LineSegment(V(26.1, -492.7, 0), V(25.6, -492.3, 0)),  # 3
    Part.LineSegment(V(25.6, -492.3, 0), V(25.6, -477.7, 0)),  # 4
], False)
sketch9.addGeometry(Part.LineSegment(V(23.6, -492.7, 0), V(23.6, -476.5, 0)), True)  # axis
sketch9.addConstraint([
    Sketcher.Constraint("Coincident", 0, 2, 1, 1),
    Sketcher.Constraint("Coincident", 1, 2, 2, 1),
    Sketcher.Constraint("Coincident", 2, 2, 3, 1),
    Sketcher.Constraint("Coincident", 3, 2, 4, 1),
    Sketcher.Constraint("Coincident", 4, 2, 0, 1),
    Sketcher.Constraint("Vertical", 1),
    Sketcher.Constraint("Horizontal", 2),
    Sketcher.Constraint("Vertical", 4),
    Sketcher.Constraint("Vertical", 5),
    Sketcher.Constraint("Coincident", 5, 1, 1, 2),
    Sketcher.Constraint("Equal", 1, 5),
    Sketcher.Constraint("Angle", 0, Q("150 deg")),
    Sketcher.Constraint("Angle", 3, Q("135 deg")),
    Sketcher.Constraint("DistanceX", 2, 1, 2, 2, Q("2.5 mm")),
    Sketcher.Constraint("DistanceY", 2, 2, 4, 2, Q("15 mm")),
    Sketcher.Constraint("DistanceY", 1, 2, -1, 1, Q("492.7 mm")),
    Sketcher.Constraint("DistanceY", 4, 1, 4, 2, Q("14.567 mm")),
    Sketcher.Constraint("DistanceX", -1, 1, 0, 2, Q("23.57 mm")),
])
groove7 = body.newObject("PartDesign::Groove", "Groove006")
groove7.Profile = sketch9
groove7.ReferenceAxis = (sketch9, ["Axis0"])
groove7.Angle = 360

# Sketch on YZ plane
sketch10 = body.newObject("Sketcher::SketchObject", "Sketch009")
sketch10.AttachmentSupport = (doc.getObject("YZ_Plane"), [""])
sketch10.MapMode = "FlatFace"
sketch10.AttachmentOffset = App.Placement(V(0, 0, -23.57), App.Rotation())
sketch10.addGeometry([
    Part.LineSegment(V(-21.5, -477.7, 0), V(-23.6, -476.5, 0)),  # 0
    Part.LineSegment(V(-23.6, -476.5, 0), V(-23.6, -492.7, 0)),  # 1
    Part.LineSegment(V(-23.6, -492.7, 0), V(-21.1, -492.7, 0)),  # 2
    Part.LineSegment(V(-21.1, -492.7, 0), V(-21.5, -492.3, 0)),  # 3
    Part.LineSegment(V(-21.5, -492.3, 0), V(-21.5, -477.7, 0)),  # 4
], False)
sketch10.addGeometry(Part.LineSegment(V(-23.6, -492.7, 0), V(-23.6, -476.5, 0)), True)  # axis
sketch10.addConstraint([
    Sketcher.Constraint("Coincident", 0, 2, 1, 1),
    Sketcher.Constraint("Coincident", 1, 2, 2, 1),
    Sketcher.Constraint("Coincident", 2, 2, 3, 1),
    Sketcher.Constraint("Coincident", 3, 2, 4, 1),
    Sketcher.Constraint("Coincident", 4, 2, 0, 1),
    Sketcher.Constraint("Vertical", 1),
    Sketcher.Constraint("Horizontal", 2),
    Sketcher.Constraint("Vertical", 4),
    Sketcher.Constraint("Vertical", 5),
    Sketcher.Constraint("Coincident", 5, 1, 1, 2),
    Sketcher.Constraint("Equal", 1, 5),
    Sketcher.Constraint("Angle", 0, Q("150 deg")),
    Sketcher.Constraint("Angle", 3, Q("135 deg")),
    Sketcher.Constraint("DistanceX", 2, 1, 2, 2, Q("2.5 mm")),
    Sketcher.Constraint("DistanceY", 2, 2, 4, 2, Q("15 mm")),
    Sketcher.Constraint("DistanceY", 1, 2, -1, 1, Q("492.7 mm")),
    Sketcher.Constraint("DistanceY", 4, 1, 4, 2, Q("14.567 mm")),
    Sketcher.Constraint("DistanceX", 0, 2, -1, 1, Q("23.57 mm")),
])
groove8 = body.newObject("PartDesign::Groove", "Groove007")
groove8.Profile = sketch10
groove8.ReferenceAxis = (sketch10, ["Axis0"])
groove8.Angle = 360

# Sketch on YZ plane
sketch11 = body.newObject("Sketcher::SketchObject", "Sketch010")
sketch11.AttachmentSupport = (doc.getObject("YZ_Plane"), [""])
sketch11.MapMode = "FlatFace"
sketch11.AttachmentOffset = App.Placement(V(0, 0, 23.57), App.Rotation())
sketch11.addGeometry([
    Part.LineSegment(V(25.6, -477.7, 0), V(23.6, -476.5, 0)),  # 0
    Part.LineSegment(V(23.6, -476.5, 0), V(23.6, -492.7, 0)),  # 1
    Part.LineSegment(V(23.6, -492.7, 0), V(26.1, -492.7, 0)),  # 2
    Part.LineSegment(V(26.1, -492.7, 0), V(25.6, -492.3, 0)),  # 3
    Part.LineSegment(V(25.6, -492.3, 0), V(25.6, -477.7, 0)),  # 4
], False)
sketch11.addGeometry(Part.LineSegment(V(23.6, -492.7, 0), V(23.6, -476.5, 0)), True)  # axis
sketch11.addConstraint([
    Sketcher.Constraint("Coincident", 0, 2, 1, 1),
    Sketcher.Constraint("Coincident", 1, 2, 2, 1),
    Sketcher.Constraint("Coincident", 2, 2, 3, 1),
    Sketcher.Constraint("Coincident", 3, 2, 4, 1),
    Sketcher.Constraint("Coincident", 4, 2, 0, 1),
    Sketcher.Constraint("Vertical", 1),
    Sketcher.Constraint("Horizontal", 2),
    Sketcher.Constraint("Vertical", 4),
    Sketcher.Constraint("Vertical", 5),
    Sketcher.Constraint("Coincident", 5, 1, 1, 2),
    Sketcher.Constraint("Equal", 1, 5),
    Sketcher.Constraint("Angle", 0, Q("150 deg")),
    Sketcher.Constraint("Angle", 3, Q("135 deg")),
    Sketcher.Constraint("DistanceX", 2, 1, 2, 2, Q("2.5 mm")),
    Sketcher.Constraint("DistanceY", 2, 2, 4, 2, Q("15 mm")),
    Sketcher.Constraint("DistanceY", 1, 2, -1, 1, Q("492.7 mm")),
    Sketcher.Constraint("DistanceY", 4, 1, 4, 2, Q("14.567 mm")),
    Sketcher.Constraint("DistanceX", -1, 1, 0, 2, Q("23.57 mm")),
])
groove9 = body.newObject("PartDesign::Groove", "Groove008")
groove9.Profile = sketch11
groove9.ReferenceAxis = (sketch11, ["Axis0"])
groove9.Angle = 360

# Sketch on YZ plane
sketch12 = body.newObject("Sketcher::SketchObject", "Sketch011")
sketch12.AttachmentSupport = (doc.getObject("YZ_Plane"), [""])
sketch12.MapMode = "FlatFace"
sketch12.AttachmentOffset = App.Placement(V(0, 0, 23.57), App.Rotation())
sketch12.addGeometry([
    Part.LineSegment(V(-21.5, -477.7, 0), V(-23.6, -476.5, 0)),  # 0
    Part.LineSegment(V(-23.6, -476.5, 0), V(-23.6, -492.7, 0)),  # 1
    Part.LineSegment(V(-23.6, -492.7, 0), V(-21.1, -492.7, 0)),  # 2
    Part.LineSegment(V(-21.1, -492.7, 0), V(-21.5, -492.3, 0)),  # 3
    Part.LineSegment(V(-21.5, -492.3, 0), V(-21.5, -477.7, 0)),  # 4
], False)
sketch12.addGeometry(Part.LineSegment(V(-23.6, -492.7, 0), V(-23.6, -476.5, 0)), True)  # axis
sketch12.addConstraint([
    Sketcher.Constraint("Coincident", 0, 2, 1, 1),
    Sketcher.Constraint("Coincident", 1, 2, 2, 1),
    Sketcher.Constraint("Coincident", 2, 2, 3, 1),
    Sketcher.Constraint("Coincident", 3, 2, 4, 1),
    Sketcher.Constraint("Coincident", 4, 2, 0, 1),
    Sketcher.Constraint("Vertical", 1),
    Sketcher.Constraint("Horizontal", 2),
    Sketcher.Constraint("Vertical", 4),
    Sketcher.Constraint("Vertical", 5),
    Sketcher.Constraint("Coincident", 5, 1, 1, 2),
    Sketcher.Constraint("Equal", 1, 5),
    Sketcher.Constraint("Angle", 0, Q("150 deg")),
    Sketcher.Constraint("Angle", 3, Q("135 deg")),
    Sketcher.Constraint("DistanceX", 2, 1, 2, 2, Q("2.5 mm")),
    Sketcher.Constraint("DistanceY", 2, 2, 4, 2, Q("15 mm")),
    Sketcher.Constraint("DistanceY", 1, 2, -1, 1, Q("492.7 mm")),
    Sketcher.Constraint("DistanceY", 4, 1, 4, 2, Q("14.567 mm")),
    Sketcher.Constraint("DistanceX", 0, 2, -1, 1, Q("23.57 mm")),
])
groove10 = body.newObject("PartDesign::Groove", "Groove009")
groove10.Profile = sketch12
groove10.ReferenceAxis = (sketch12, ["Axis0"])
groove10.Angle = 360

doc.recompute()
